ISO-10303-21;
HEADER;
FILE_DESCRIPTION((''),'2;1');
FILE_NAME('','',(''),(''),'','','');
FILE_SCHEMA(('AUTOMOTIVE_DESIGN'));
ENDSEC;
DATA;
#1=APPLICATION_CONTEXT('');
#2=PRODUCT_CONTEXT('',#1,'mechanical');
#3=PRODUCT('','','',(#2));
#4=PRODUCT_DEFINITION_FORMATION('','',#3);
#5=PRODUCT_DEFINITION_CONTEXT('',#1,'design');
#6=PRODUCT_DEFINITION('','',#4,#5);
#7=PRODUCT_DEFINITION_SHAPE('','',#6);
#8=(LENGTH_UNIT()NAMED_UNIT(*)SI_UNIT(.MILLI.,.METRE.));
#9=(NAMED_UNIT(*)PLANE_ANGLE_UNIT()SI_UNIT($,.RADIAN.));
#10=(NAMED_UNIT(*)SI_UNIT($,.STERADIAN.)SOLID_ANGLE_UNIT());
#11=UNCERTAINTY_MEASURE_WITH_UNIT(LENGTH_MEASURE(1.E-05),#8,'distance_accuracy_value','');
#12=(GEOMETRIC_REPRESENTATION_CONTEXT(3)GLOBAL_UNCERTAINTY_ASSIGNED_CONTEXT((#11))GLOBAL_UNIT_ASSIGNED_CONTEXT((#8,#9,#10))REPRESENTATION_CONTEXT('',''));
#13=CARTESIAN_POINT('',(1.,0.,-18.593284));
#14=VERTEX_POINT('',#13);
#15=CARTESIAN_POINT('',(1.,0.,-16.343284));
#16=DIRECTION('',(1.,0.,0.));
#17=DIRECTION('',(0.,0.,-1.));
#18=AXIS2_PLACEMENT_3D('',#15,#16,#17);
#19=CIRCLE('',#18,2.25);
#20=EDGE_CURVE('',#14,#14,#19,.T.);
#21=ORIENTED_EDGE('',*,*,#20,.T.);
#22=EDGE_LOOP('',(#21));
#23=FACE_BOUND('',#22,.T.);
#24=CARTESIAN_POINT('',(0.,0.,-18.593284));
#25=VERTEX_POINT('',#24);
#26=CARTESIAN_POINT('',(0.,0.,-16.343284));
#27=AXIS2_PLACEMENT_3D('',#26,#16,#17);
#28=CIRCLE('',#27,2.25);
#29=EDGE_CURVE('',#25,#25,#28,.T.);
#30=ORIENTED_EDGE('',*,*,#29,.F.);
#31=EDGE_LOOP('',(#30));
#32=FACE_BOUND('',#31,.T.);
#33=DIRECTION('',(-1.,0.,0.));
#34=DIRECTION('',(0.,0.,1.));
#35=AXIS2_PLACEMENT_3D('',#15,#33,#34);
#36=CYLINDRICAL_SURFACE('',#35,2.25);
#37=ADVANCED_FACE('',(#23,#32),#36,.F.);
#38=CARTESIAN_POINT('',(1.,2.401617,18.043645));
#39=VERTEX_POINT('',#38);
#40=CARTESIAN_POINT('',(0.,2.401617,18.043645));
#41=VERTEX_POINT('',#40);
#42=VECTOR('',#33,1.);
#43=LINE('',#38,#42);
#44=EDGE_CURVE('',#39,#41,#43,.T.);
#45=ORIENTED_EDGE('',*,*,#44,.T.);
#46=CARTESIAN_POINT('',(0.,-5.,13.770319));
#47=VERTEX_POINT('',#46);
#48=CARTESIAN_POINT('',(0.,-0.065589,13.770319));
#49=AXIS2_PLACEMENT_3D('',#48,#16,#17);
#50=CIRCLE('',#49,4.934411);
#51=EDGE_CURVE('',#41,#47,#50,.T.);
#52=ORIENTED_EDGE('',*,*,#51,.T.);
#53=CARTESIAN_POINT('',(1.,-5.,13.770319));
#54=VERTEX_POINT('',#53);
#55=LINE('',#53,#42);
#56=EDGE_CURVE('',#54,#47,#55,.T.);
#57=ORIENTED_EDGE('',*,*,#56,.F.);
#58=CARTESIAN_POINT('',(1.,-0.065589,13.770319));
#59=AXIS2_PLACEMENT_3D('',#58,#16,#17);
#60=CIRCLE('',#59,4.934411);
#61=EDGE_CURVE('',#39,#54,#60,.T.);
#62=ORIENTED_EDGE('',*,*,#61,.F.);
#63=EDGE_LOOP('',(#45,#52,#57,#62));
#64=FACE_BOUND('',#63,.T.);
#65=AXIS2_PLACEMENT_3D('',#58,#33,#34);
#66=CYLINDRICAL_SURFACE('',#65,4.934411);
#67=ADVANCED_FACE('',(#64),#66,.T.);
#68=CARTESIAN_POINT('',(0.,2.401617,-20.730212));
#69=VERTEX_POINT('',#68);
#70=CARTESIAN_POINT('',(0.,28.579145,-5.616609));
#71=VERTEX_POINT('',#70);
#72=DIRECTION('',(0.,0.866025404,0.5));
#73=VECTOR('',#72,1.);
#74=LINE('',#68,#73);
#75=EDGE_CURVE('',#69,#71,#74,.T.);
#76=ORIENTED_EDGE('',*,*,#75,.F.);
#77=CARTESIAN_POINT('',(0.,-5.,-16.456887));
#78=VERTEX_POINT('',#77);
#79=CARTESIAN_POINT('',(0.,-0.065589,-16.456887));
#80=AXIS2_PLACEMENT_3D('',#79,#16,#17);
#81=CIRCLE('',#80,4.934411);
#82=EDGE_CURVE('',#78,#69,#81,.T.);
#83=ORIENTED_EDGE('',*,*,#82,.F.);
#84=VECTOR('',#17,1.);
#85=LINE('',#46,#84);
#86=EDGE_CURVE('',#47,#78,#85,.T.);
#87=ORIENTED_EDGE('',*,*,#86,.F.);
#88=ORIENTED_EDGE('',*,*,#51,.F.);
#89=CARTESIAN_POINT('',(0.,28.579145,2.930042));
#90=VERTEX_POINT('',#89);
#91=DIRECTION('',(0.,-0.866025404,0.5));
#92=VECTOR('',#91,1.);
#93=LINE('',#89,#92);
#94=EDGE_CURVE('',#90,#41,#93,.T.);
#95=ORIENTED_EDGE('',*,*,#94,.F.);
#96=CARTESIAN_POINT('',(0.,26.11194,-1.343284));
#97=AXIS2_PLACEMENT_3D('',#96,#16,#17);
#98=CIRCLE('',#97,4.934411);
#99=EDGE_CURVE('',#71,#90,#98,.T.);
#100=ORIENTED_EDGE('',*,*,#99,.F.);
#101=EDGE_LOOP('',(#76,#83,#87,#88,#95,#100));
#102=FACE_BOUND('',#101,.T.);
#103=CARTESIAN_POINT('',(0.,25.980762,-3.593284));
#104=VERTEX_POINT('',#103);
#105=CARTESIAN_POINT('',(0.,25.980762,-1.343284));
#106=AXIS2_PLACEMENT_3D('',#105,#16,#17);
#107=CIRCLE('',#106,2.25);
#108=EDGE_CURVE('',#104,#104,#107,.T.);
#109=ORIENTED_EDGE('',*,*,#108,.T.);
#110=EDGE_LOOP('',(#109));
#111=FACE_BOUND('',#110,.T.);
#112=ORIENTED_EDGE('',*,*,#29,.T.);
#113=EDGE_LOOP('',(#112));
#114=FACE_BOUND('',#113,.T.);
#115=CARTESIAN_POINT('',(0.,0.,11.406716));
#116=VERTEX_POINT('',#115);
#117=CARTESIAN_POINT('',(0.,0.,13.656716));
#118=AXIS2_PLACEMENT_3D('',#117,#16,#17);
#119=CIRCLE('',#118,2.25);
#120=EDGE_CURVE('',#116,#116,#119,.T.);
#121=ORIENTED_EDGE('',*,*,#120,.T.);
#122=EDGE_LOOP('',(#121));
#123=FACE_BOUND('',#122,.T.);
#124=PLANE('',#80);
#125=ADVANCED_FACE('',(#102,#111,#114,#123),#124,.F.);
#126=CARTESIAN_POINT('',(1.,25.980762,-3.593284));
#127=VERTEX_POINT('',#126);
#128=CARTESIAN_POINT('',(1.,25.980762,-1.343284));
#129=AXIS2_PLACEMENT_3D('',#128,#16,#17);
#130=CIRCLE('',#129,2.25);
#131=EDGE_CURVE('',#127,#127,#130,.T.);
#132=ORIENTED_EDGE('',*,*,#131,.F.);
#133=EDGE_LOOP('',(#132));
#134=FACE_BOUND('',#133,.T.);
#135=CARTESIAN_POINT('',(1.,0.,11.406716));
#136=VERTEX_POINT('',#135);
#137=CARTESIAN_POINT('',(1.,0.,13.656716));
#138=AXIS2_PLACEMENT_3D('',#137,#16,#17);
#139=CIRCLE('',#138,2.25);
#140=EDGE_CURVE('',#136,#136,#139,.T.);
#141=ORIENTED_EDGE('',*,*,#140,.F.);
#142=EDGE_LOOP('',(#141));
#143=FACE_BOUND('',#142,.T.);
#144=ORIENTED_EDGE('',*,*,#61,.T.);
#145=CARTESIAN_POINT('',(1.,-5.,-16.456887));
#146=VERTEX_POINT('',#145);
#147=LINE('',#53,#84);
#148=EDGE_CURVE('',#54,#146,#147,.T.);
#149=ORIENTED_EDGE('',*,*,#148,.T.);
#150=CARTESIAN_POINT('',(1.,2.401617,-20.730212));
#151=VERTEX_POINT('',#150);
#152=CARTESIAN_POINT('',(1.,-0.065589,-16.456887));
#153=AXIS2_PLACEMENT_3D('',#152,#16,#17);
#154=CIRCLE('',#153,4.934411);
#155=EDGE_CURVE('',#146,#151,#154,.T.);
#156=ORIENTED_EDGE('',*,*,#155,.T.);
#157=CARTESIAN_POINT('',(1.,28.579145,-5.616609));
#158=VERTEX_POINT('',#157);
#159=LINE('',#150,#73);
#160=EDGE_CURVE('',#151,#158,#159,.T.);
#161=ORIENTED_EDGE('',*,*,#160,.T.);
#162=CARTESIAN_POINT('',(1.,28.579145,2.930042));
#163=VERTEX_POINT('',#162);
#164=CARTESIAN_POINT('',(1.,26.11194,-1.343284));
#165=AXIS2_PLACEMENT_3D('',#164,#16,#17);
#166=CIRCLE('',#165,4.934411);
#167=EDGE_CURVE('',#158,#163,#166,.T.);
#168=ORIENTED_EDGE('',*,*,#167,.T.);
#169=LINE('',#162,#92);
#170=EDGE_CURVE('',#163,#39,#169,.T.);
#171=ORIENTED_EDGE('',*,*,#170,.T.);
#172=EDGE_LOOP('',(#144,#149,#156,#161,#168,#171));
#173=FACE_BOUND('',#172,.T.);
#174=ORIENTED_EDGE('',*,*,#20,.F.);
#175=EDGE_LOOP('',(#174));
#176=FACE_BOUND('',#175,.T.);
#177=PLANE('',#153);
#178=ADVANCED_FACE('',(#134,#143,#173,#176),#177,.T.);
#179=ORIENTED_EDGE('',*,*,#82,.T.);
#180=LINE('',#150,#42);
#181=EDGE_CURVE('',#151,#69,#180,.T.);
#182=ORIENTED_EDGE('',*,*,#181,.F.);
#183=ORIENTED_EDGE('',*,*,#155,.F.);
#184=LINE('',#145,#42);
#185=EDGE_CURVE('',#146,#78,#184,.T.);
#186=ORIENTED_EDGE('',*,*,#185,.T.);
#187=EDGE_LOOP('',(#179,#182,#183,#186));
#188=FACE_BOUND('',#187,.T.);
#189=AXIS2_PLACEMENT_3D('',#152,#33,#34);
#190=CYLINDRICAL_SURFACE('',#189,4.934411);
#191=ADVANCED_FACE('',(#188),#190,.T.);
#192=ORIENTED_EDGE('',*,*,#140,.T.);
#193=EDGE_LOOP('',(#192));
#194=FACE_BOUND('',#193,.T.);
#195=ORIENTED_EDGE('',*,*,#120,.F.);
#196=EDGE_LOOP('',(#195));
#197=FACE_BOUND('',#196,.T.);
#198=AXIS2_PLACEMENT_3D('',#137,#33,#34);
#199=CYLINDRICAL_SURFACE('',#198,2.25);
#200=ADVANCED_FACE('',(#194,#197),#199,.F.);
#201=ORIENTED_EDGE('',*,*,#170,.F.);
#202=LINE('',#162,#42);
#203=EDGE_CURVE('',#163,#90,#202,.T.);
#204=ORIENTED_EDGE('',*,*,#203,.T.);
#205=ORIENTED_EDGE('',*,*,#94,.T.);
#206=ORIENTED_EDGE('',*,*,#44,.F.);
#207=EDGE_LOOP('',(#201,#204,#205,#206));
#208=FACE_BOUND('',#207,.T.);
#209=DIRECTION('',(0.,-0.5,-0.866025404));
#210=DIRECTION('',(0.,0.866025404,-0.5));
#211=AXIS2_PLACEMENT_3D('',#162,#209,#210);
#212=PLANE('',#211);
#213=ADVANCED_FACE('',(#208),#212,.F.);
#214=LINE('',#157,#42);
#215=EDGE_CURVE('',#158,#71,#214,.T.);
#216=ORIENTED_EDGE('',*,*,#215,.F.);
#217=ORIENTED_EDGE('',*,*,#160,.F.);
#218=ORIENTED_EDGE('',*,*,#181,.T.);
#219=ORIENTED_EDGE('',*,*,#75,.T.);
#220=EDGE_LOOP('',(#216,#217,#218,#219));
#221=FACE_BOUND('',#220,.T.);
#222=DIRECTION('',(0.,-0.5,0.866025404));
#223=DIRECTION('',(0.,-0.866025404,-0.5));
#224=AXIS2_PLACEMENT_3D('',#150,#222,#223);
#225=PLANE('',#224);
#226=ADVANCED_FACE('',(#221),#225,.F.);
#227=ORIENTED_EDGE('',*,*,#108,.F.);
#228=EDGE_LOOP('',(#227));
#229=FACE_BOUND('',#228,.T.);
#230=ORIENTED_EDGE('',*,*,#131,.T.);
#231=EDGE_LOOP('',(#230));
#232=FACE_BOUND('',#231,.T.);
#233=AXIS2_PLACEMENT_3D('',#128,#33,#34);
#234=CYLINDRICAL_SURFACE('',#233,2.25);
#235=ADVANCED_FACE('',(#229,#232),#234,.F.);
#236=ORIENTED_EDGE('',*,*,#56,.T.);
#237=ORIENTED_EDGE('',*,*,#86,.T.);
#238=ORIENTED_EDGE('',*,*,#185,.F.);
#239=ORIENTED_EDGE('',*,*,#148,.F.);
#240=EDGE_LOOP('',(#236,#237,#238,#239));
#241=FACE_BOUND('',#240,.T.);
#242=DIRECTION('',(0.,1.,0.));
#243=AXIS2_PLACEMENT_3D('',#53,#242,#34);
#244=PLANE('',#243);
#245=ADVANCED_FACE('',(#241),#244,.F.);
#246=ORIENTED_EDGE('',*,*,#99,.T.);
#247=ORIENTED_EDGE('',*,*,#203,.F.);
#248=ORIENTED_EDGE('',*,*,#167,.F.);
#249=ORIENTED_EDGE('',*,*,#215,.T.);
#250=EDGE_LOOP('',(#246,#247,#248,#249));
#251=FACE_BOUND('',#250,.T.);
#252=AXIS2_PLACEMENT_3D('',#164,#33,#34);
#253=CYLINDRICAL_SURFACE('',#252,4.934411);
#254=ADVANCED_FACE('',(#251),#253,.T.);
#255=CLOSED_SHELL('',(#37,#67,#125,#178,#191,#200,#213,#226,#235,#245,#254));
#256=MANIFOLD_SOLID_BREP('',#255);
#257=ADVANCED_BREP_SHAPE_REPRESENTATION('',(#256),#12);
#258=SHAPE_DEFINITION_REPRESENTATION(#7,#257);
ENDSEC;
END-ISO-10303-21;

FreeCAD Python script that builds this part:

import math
import FreeCAD as App
import Part
import Sketcher
from FreeCAD import Vector
Q = App.Units.Quantity

doc = App.newDocument("Part")
body = doc.addObject("PartDesign::Body", "Body")

# Sketch on YZ plane
sketch1 = body.newObject("Sketcher::SketchObject", "Sketch")
sketch1.AttachmentSupport = (doc.getObject("YZ_Plane"), [""])
sketch1.MapMode = "FlatFace"
sketch1.addGeometry(Part.LineSegment(Vector(-5, 13.8, 0), Vector(-5, -16.5, 0)), False)
sketch1.addGeometry(Part.ArcOfCircle(Part.Circle(Vector(-0.1, -16.5, 0), Vector(0, 0, 1), 4.9), math.radians(180), math.radians(300)), False)
sketch1.addGeometry(Part.LineSegment(Vector(2.4, -20.7, 0), Vector(28.6, -5.6, 0)), False)
sketch1.addGeometry(Part.ArcOfCircle(Part.Circle(Vector(26.1, -1.3, 0), Vector(0, 0, 1), 4.9), math.radians(-60), math.radians(60)), False)
sketch1.addGeometry(Part.LineSegment(Vector(28.6, 2.9, 0), Vector(2.4, 18, 0)), False)
sketch1.addGeometry(Part.ArcOfCircle(Part.Circle(Vector(-0.1, 13.8, 0), Vector(0, 0, 1), 4.9), math.radians(60), math.radians(180)), False)
sketch1.addGeometry(Part.Circle(Vector(0, 13.7, 0), Vector(0, 0, 1), 2.2), False)
sketch1.addGeometry(Part.Circle(Vector(0, -16.3, 0), Vector(0, 0, 1), 2.2), False)
sketch1.addGeometry(Part.Circle(Vector(26, -1.3, 0), Vector(0, 0, 1), 2.2), False)
sketch1.addConstraint(Sketcher.Constraint("Tangent", 0, 2, 1, 1))
sketch1.addConstraint(Sketcher.Constraint("Tangent", 1, 2, 2, 1))
sketch1.addConstraint(Sketcher.Constraint("Tangent", 2, 2, 3, 1))
sketch1.addConstraint(Sketcher.Constraint("Tangent", 3, 2, 4, 1))
sketch1.addConstraint(Sketcher.Constraint("Tangent", 4, 2, 5, 1))
sketch1.addConstraint(Sketcher.Constraint("Tangent", 5, 2, 0, 1))
sketch1.addConstraint(Sketcher.Constraint("Vertical", 0))
sketch1.addConstraint(Sketcher.Constraint("Equal", 1, 3))
sketch1.addConstraint(Sketcher.Constraint("Equal", 3, 5))
sketch1.addConstraint(Sketcher.Constraint("Equal", 6, 7))
sketch1.addConstraint(Sketcher.Constraint("Equal", 7, 8))
sketch1.addConstraint(Sketcher.Constraint("PointOnObject", 6, 3, -2))
sketch1.addConstraint(Sketcher.Constraint("PointOnObject", 7, 3, -2))
sketch1.addConstraint(Sketcher.Constraint("Horizontal", 3, 3, 8, 3))
sketch1.addConstraint(Sketcher.Constraint("Vertical", 2, 2, 3, 2))
sketch1.addConstraint(Sketcher.Constraint("Diameter", 6, Q("4.5 mm")))
sketch1.addConstraint(Sketcher.Constraint("Angle", 2, Q("30 deg")))
sketch1.addConstraint(Sketcher.Constraint("DistanceX", 0, 2, -1, 1, Q("5 mm")))
sketch1.addConstraint(Sketcher.Constraint("DistanceY", 3, 3, 6, 3, Q("15 mm")))
sketch1.addConstraint(Sketcher.Constraint("DistanceY", 7, 3, 6, 3, Q("30 mm")))
sketch1.addConstraint(Sketcher.Constraint("Radius", 1, Q("4.934411 mm")))
sketch1.addConstraint(Sketcher.Constraint("DistanceY", 0, 2, 0, 1, Q("30.227206 mm")))
sketch1.addConstraint(Sketcher.Constraint("DistanceY", -1, 1, 5, 3, Q("13.770319 mm")))
sketch1.addConstraint(Sketcher.Constraint("DistanceX", 5, 3, 8, 3, Q("26.046351 mm")))
pad1 = body.newObject("PartDesign::Pad", "Pad")
pad1.Profile = sketch1
pad1.Length = 1

doc.recompute()
